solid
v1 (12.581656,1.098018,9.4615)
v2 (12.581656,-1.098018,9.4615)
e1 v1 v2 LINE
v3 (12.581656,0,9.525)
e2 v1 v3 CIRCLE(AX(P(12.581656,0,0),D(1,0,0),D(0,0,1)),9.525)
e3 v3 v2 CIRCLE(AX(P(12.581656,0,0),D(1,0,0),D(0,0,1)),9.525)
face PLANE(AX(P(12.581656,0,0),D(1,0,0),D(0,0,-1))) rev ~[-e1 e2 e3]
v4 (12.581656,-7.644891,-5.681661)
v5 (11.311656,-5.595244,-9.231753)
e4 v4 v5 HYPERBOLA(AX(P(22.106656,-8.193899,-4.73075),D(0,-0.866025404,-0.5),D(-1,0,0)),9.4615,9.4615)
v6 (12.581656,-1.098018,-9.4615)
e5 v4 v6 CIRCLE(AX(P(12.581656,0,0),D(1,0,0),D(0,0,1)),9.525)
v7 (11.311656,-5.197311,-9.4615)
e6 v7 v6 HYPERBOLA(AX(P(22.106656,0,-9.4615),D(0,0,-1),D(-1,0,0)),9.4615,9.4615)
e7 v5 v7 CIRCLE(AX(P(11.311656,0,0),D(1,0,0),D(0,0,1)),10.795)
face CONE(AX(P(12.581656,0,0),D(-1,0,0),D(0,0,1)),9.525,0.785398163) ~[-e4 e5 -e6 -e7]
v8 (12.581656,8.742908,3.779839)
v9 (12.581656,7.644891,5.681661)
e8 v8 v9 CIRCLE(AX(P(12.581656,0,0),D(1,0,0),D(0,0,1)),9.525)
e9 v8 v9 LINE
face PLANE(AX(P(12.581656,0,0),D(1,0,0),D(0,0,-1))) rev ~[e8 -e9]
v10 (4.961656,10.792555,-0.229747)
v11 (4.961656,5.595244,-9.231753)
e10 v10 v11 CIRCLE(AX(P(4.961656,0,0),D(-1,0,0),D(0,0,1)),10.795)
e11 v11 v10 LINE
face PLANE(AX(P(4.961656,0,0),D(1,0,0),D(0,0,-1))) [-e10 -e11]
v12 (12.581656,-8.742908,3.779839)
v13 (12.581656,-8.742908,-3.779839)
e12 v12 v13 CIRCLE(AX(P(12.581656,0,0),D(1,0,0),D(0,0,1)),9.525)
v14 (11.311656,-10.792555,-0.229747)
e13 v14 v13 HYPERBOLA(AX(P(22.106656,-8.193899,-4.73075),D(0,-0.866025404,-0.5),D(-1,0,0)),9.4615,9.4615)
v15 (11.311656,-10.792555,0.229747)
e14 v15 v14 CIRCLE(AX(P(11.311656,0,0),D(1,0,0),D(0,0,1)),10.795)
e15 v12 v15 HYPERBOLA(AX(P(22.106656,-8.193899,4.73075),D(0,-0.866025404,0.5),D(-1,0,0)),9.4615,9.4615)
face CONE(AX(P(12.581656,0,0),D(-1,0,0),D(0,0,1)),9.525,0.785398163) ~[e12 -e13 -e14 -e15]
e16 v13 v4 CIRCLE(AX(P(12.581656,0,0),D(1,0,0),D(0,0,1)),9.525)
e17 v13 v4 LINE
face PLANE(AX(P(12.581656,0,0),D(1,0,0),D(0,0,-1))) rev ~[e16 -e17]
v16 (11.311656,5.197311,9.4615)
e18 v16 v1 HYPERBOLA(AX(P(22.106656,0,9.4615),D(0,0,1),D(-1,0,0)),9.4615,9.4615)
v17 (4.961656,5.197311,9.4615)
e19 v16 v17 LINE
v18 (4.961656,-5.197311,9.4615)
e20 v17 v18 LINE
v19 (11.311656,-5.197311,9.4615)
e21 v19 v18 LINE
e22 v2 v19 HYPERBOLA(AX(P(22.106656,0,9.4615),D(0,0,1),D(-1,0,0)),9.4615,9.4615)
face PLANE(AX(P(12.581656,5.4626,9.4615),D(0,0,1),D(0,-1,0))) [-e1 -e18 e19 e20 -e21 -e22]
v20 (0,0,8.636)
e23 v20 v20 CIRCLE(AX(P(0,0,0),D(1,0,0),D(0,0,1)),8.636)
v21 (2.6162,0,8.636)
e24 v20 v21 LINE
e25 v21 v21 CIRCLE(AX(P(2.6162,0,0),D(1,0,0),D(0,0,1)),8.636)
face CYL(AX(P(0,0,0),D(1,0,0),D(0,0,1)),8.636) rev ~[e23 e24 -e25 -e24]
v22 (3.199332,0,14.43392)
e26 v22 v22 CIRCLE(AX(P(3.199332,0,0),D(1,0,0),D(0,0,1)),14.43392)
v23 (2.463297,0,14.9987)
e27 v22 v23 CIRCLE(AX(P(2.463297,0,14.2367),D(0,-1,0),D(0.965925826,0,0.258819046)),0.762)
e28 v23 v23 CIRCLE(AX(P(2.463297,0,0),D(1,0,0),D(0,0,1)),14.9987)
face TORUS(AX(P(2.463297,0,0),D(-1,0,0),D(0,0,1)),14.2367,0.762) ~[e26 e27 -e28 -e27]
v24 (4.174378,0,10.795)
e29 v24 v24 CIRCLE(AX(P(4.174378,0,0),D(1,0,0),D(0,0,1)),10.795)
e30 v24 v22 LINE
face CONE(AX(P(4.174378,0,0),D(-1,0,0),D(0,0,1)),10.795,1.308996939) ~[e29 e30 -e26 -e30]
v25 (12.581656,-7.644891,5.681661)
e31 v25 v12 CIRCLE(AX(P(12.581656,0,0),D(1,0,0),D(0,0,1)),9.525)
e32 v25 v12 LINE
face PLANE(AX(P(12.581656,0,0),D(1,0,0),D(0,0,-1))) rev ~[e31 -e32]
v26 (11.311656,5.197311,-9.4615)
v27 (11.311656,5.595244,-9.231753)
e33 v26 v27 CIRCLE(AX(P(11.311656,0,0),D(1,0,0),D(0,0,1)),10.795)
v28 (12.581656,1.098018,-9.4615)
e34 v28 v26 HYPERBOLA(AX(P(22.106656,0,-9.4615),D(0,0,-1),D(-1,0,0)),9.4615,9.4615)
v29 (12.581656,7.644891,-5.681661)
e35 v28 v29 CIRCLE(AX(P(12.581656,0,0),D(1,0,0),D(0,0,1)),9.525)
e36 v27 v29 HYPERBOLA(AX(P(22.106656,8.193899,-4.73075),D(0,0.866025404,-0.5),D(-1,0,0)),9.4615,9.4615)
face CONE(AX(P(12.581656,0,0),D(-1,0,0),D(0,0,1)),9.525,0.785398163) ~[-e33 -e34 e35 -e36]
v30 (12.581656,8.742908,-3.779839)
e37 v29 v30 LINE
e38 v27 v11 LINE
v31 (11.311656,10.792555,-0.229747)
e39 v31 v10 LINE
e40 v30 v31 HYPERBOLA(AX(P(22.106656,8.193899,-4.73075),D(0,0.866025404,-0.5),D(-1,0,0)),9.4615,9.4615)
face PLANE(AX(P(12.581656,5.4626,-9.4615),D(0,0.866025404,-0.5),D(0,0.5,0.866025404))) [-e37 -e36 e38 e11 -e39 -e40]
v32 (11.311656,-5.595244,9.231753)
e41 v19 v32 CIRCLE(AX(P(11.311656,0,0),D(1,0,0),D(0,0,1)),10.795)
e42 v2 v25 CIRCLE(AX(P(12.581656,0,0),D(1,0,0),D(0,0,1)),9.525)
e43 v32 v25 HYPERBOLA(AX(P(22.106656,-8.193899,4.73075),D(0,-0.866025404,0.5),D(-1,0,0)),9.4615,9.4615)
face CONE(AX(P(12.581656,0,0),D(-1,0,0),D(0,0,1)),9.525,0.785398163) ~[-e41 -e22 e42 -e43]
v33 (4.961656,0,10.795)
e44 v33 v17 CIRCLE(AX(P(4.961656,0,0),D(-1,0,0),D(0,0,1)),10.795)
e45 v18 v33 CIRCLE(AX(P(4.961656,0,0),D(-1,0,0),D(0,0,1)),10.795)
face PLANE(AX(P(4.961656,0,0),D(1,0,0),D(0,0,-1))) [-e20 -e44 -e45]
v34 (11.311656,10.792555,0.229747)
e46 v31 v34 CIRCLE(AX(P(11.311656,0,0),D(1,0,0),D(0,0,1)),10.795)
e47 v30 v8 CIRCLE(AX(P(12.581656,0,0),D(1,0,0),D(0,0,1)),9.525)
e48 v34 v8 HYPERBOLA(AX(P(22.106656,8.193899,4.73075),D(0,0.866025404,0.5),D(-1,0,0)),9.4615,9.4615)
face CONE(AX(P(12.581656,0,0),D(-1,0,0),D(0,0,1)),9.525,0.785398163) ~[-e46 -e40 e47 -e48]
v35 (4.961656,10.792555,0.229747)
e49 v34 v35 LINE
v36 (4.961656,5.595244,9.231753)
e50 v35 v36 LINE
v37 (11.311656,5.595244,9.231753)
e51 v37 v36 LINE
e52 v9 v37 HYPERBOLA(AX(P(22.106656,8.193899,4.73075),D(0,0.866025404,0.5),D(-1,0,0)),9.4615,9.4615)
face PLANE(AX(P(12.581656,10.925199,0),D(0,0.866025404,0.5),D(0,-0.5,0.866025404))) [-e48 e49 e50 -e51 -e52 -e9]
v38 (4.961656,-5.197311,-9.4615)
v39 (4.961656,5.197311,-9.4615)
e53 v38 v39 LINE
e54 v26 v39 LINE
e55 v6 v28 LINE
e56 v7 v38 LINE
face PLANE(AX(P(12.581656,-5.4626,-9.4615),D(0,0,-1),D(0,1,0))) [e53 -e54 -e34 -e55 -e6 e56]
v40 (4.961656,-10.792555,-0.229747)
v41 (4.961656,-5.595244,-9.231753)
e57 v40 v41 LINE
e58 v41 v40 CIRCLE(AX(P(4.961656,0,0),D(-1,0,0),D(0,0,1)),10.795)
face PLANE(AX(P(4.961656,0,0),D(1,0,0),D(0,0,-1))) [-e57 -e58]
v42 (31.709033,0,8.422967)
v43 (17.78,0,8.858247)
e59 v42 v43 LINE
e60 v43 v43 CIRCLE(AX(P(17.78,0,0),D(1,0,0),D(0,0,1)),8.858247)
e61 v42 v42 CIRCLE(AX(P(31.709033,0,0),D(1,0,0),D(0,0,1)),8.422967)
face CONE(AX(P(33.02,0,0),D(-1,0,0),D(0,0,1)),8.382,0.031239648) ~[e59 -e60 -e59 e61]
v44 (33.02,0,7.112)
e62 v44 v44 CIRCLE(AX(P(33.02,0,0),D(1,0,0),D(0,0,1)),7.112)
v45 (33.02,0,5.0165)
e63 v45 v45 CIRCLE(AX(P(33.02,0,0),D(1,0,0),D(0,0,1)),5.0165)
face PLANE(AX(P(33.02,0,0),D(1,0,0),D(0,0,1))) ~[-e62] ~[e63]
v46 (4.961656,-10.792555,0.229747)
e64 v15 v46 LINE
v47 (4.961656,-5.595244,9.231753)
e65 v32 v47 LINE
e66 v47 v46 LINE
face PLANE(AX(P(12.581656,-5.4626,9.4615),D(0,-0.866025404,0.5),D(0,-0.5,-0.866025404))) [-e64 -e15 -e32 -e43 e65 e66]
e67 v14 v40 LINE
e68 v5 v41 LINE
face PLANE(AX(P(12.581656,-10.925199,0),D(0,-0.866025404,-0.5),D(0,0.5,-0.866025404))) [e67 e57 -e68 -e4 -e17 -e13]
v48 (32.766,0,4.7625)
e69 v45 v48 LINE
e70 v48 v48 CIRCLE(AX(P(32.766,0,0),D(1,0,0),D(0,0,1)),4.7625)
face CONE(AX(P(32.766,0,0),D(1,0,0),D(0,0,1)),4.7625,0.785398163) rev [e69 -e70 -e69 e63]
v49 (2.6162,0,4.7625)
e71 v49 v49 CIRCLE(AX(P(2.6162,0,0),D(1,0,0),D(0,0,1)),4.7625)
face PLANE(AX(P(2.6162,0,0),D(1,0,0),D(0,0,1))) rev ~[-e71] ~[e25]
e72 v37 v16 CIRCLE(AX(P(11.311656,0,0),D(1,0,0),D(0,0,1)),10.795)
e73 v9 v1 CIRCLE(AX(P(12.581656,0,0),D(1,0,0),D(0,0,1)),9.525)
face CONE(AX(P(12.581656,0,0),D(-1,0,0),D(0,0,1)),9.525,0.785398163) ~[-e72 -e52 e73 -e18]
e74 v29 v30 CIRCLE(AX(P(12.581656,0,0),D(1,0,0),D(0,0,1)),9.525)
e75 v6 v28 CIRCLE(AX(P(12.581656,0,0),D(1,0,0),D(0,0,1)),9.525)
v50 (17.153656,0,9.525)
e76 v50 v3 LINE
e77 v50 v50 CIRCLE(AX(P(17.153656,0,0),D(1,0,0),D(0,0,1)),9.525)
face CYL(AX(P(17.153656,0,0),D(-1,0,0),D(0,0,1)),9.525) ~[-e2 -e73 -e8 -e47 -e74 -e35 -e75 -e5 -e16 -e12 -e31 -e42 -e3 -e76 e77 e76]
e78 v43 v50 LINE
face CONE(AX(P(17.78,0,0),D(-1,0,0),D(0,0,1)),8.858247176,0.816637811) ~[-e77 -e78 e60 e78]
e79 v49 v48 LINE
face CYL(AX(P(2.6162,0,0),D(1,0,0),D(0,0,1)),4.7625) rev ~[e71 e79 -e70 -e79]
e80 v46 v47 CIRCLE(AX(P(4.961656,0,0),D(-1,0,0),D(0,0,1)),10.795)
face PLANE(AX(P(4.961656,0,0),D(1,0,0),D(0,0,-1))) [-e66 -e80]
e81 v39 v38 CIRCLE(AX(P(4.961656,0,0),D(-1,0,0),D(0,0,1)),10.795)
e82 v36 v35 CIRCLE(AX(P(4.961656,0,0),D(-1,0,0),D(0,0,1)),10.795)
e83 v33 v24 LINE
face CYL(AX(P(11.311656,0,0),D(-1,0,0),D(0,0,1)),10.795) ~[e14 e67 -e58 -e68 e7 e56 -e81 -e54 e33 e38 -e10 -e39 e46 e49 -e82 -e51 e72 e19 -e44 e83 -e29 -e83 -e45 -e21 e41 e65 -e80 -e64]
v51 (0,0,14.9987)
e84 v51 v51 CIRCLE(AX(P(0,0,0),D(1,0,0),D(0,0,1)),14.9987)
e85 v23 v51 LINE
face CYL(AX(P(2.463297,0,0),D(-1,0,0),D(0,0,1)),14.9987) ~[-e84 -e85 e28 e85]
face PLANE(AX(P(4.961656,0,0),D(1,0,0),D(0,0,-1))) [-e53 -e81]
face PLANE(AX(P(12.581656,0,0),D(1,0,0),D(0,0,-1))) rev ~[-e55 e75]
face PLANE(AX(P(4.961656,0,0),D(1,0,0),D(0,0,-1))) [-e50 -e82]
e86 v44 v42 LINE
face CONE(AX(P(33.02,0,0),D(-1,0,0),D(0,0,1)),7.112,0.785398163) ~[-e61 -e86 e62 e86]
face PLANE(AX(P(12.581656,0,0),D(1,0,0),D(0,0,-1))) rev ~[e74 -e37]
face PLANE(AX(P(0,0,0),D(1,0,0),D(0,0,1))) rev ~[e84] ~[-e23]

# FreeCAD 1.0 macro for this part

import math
import FreeCAD as App
import Part
import Sketcher
from FreeCAD import Vector
Q = App.Units.Quantity


def edges_at(feature, points):
    """Names of the edges that pass closest to the given points."""
    edges = feature.Shape.Edges
    near = lambda p: min(range(len(edges)), key=lambda i: edges[i].distToShape(Part.Vertex(*p))[0])
    return sorted({f"Edge{near(p) + 1}" for p in points})


def add_polygon(sketch, points):
    """Adds a closed chain of lines whose ends are joined by coincident constraints."""
    first, n = sketch.GeometryCount, len(points)
    for a, b in zip(points, points[1:] + points[:1]):
        sketch.addGeometry(Part.LineSegment(App.Vector(*a, 0), App.Vector(*b, 0)), False)
    for i in range(n):
        sketch.addConstraint(Sketcher.Constraint("Coincident", first + i, 2, first + (i + 1) % n, 1))

doc = App.newDocument("Part")
body = doc.addObject("PartDesign::Body", "Body")

sketch1 = body.newObject("Sketcher::SketchObject", "Sketch")
sketch1.AttachmentSupport = (doc.getObject("XY_Plane"), [""])
sketch1.MapMode = "FlatFace"
sketch1.addGeometry([
    Part.LineSegment(Vector(2.463297, 14.9987, 0), Vector(0, 14.9987, 0)),
    Part.LineSegment(Vector(0, 14.9987, 0), Vector(0, 8.636, 0)),
    Part.LineSegment(Vector(0, 8.636, 0), Vector(2.6162, 8.636, 0)),
    Part.LineSegment(Vector(2.6162, 8.636, 0), Vector(2.6162, 4.7625, 0)),
    Part.LineSegment(Vector(2.6162, 4.7625, 0), Vector(33.02, 4.7625, 0)),
    Part.LineSegment(Vector(33.02, 4.7625, 0), Vector(33.02, 8.382, 0)),
    Part.LineSegment(Vector(33.02, 8.382, 0), Vector(17.78, 8.858247, 0)),
    Part.LineSegment(Vector(17.78, 8.858247, 0), Vector(17.153656, 9.525, 0)),
    Part.LineSegment(Vector(17.153656, 9.525, 0), Vector(12.581656, 9.525, 0)),
    Part.LineSegment(Vector(12.581656, 9.525, 0), Vector(11.311656, 10.795, 0)),
    Part.LineSegment(Vector(11.311656, 10.795, 0), Vector(4.174378, 10.795, 0)),
    Part.LineSegment(Vector(4.174378, 10.795, 0), Vector(3.199332, 14.43392, 0)),
    Part.ArcOfCircle(Part.Circle(Vector(2.463297, 14.2367, 0), Vector(0, 0, 1), 0.762), math.radians(15), math.radians(90)),
], False)
sketch1.addConstraint([
    Sketcher.Constraint("Coincident", 0, 2, 1, 1),
    Sketcher.Constraint("Coincident", 1, 2, 2, 1),
    Sketcher.Constraint("Coincident", 2, 2, 3, 1),
    Sketcher.Constraint("Coincident", 3, 2, 4, 1),
    Sketcher.Constraint("Coincident", 4, 2, 5, 1),
    Sketcher.Constraint("Coincident", 5, 2, 6, 1),
    Sketcher.Constraint("Coincident", 6, 2, 7, 1),
    Sketcher.Constraint("Coincident", 7, 2, 8, 1),
    Sketcher.Constraint("Coincident", 8, 2, 9, 1),
    Sketcher.Constraint("Coincident", 9, 2, 10, 1),
    Sketcher.Constraint("Coincident", 10, 2, 11, 1),
    Sketcher.Constraint("Tangent", 11, 2, 12, 1),
    Sketcher.Constraint("Tangent", 12, 2, 0, 1),
    Sketcher.Constraint("Horizontal", 0),
    Sketcher.Constraint("Vertical", 1),
    Sketcher.Constraint("Horizontal", 2),
    Sketcher.Constraint("Vertical", 3),
    Sketcher.Constraint("Horizontal", 4),
    Sketcher.Constraint("Vertical", 5),
    Sketcher.Constraint("Horizontal", 8),
    Sketcher.Constraint("Horizontal", 10),
    Sketcher.Constraint("PointOnObject", 0, 2, -2),
    Sketcher.Constraint("Radius", 12, Q("0.03 in")),
    Sketcher.Constraint("Angle", 9, Q("135 deg")),
    Sketcher.Constraint("Angle", 11, Q("105 deg")),
    Sketcher.Constraint("DistanceX", 8, 2, 8, 1, Q("0.18 in")),
    Sketcher.Constraint("DistanceX", -1, 1, 4, 2, Q("1.3 in")),
    Sketcher.Constraint("DistanceX", -1, 1, 6, 2, Q("0.7 in")),
    Sketcher.Constraint("DistanceX", 2, 1, 2, 2, Q("0.103 in")),
    Sketcher.Constraint("DistanceY", -1, 1, 1, 2, Q("0.34 in")),
    Sketcher.Constraint("DistanceY", -1, 1, 5, 2, Q("0.33 in")),
    Sketcher.Constraint("DistanceX", 9, 2, 8, 2, Q("0.05 in")),
    Sketcher.Constraint("DistanceY", 1, 2, 1, 1, Q("0.2505 in")),
    Sketcher.Constraint("DistanceY", 3, 2, 3, 1, Q("0.1525 in")),
    Sketcher.Constraint("DistanceY", -1, 1, 7, 2, Q("0.375 in")),
    Sketcher.Constraint("DistanceX", 10, 2, 10, 1, Q("7.137278 mm")),
    Sketcher.Constraint("Distance", 6, Q("15.24744 mm")),
    Sketcher.Constraint("DistanceX", 0, 2, 0, 1, Q("2.463297 mm")),
])
revolution = body.newObject("PartDesign::Revolution", "Revolution")
revolution.Profile = sketch1
revolution.ReferenceAxis = (sketch1, ["H_Axis"])
revolution.Angle = 360
doc.recompute()

chamfer = body.newObject("PartDesign::Chamfer", "Chamfer")
chamfer.Base = (revolution, edges_at(revolution, [(33.02, 0, -8.382)]))
chamfer.ChamferType = "Two distances"
chamfer.Size = Q("0.05 in")
chamfer.Size2 = 1.311607

sketch2 = body.newObject("Sketcher::SketchObject", "Sketch001")
sketch2.AttachmentSupport = (doc.getObject("YZ_Plane"), [""])
sketch2.MapMode = "FlatFace"
sketch2.AttachmentOffset = App.Placement(Vector(0, 0, 12.581656), App.Rotation())
add_polygon(sketch2, [(21.375, 21.375), (-21.375, 21.375), (-21.375, -21.375), (21.375, -21.375)])
add_polygon(sketch2, [(5.4626, 9.4615), (10.925199, 0), (5.4626, -9.4615), (-5.4626, -9.4615), (-10.925199, 0), (-5.4626, 9.4615)])
sketch2.addConstraint([
    Sketcher.Constraint("Horizontal", 0),
    Sketcher.Constraint("Vertical", 1),
    Sketcher.Constraint("Horizontal", 2),
    Sketcher.Constraint("Vertical", 3),
    Sketcher.Constraint("Horizontal", 6),
    Sketcher.Constraint("Horizontal", 9),
    Sketcher.Constraint("Symmetric", 0, 2, 2, 2, -1, 1),
    Sketcher.Constraint("Symmetric", 4, 2, 7, 2, -1, 1),
    Sketcher.Constraint("Symmetric", 5, 2, 8, 2, -1, 1),
    Sketcher.Constraint("PointOnObject", 4, 2, -1),
    Sketcher.Constraint("Parallel", 4, 7),
    Sketcher.Constraint("Vertical", 6, 2, 8, 2),
    Sketcher.Constraint("Equal", 2, 1),
    Sketcher.Constraint("Angle", 4, Q("-60 deg")),
    Sketcher.Constraint("DistanceY", 6, 2, 8, 2, Q("0.745 in")),
    Sketcher.Constraint("DistanceX", 0, 2, 0, 1, Q("42.75 mm")),
    Sketcher.Constraint("DistanceX", 6, 2, 6, 1, Q("10.925199 mm")),
])
pocket1 = body.newObject("PartDesign::Pocket", "Pocket")
pocket1.Profile = sketch2
pocket1.Length = Q("0.3 in")
doc.recompute()

chamfer2 = body.newObject("PartDesign::Chamfer", "Chamfer001")
chamfer2.Base = (pocket1, edges_at(pocket1, [(33.02, 0, -4.763)]))
chamfer2.Size = Q("0.01 in")

doc.recompute()
